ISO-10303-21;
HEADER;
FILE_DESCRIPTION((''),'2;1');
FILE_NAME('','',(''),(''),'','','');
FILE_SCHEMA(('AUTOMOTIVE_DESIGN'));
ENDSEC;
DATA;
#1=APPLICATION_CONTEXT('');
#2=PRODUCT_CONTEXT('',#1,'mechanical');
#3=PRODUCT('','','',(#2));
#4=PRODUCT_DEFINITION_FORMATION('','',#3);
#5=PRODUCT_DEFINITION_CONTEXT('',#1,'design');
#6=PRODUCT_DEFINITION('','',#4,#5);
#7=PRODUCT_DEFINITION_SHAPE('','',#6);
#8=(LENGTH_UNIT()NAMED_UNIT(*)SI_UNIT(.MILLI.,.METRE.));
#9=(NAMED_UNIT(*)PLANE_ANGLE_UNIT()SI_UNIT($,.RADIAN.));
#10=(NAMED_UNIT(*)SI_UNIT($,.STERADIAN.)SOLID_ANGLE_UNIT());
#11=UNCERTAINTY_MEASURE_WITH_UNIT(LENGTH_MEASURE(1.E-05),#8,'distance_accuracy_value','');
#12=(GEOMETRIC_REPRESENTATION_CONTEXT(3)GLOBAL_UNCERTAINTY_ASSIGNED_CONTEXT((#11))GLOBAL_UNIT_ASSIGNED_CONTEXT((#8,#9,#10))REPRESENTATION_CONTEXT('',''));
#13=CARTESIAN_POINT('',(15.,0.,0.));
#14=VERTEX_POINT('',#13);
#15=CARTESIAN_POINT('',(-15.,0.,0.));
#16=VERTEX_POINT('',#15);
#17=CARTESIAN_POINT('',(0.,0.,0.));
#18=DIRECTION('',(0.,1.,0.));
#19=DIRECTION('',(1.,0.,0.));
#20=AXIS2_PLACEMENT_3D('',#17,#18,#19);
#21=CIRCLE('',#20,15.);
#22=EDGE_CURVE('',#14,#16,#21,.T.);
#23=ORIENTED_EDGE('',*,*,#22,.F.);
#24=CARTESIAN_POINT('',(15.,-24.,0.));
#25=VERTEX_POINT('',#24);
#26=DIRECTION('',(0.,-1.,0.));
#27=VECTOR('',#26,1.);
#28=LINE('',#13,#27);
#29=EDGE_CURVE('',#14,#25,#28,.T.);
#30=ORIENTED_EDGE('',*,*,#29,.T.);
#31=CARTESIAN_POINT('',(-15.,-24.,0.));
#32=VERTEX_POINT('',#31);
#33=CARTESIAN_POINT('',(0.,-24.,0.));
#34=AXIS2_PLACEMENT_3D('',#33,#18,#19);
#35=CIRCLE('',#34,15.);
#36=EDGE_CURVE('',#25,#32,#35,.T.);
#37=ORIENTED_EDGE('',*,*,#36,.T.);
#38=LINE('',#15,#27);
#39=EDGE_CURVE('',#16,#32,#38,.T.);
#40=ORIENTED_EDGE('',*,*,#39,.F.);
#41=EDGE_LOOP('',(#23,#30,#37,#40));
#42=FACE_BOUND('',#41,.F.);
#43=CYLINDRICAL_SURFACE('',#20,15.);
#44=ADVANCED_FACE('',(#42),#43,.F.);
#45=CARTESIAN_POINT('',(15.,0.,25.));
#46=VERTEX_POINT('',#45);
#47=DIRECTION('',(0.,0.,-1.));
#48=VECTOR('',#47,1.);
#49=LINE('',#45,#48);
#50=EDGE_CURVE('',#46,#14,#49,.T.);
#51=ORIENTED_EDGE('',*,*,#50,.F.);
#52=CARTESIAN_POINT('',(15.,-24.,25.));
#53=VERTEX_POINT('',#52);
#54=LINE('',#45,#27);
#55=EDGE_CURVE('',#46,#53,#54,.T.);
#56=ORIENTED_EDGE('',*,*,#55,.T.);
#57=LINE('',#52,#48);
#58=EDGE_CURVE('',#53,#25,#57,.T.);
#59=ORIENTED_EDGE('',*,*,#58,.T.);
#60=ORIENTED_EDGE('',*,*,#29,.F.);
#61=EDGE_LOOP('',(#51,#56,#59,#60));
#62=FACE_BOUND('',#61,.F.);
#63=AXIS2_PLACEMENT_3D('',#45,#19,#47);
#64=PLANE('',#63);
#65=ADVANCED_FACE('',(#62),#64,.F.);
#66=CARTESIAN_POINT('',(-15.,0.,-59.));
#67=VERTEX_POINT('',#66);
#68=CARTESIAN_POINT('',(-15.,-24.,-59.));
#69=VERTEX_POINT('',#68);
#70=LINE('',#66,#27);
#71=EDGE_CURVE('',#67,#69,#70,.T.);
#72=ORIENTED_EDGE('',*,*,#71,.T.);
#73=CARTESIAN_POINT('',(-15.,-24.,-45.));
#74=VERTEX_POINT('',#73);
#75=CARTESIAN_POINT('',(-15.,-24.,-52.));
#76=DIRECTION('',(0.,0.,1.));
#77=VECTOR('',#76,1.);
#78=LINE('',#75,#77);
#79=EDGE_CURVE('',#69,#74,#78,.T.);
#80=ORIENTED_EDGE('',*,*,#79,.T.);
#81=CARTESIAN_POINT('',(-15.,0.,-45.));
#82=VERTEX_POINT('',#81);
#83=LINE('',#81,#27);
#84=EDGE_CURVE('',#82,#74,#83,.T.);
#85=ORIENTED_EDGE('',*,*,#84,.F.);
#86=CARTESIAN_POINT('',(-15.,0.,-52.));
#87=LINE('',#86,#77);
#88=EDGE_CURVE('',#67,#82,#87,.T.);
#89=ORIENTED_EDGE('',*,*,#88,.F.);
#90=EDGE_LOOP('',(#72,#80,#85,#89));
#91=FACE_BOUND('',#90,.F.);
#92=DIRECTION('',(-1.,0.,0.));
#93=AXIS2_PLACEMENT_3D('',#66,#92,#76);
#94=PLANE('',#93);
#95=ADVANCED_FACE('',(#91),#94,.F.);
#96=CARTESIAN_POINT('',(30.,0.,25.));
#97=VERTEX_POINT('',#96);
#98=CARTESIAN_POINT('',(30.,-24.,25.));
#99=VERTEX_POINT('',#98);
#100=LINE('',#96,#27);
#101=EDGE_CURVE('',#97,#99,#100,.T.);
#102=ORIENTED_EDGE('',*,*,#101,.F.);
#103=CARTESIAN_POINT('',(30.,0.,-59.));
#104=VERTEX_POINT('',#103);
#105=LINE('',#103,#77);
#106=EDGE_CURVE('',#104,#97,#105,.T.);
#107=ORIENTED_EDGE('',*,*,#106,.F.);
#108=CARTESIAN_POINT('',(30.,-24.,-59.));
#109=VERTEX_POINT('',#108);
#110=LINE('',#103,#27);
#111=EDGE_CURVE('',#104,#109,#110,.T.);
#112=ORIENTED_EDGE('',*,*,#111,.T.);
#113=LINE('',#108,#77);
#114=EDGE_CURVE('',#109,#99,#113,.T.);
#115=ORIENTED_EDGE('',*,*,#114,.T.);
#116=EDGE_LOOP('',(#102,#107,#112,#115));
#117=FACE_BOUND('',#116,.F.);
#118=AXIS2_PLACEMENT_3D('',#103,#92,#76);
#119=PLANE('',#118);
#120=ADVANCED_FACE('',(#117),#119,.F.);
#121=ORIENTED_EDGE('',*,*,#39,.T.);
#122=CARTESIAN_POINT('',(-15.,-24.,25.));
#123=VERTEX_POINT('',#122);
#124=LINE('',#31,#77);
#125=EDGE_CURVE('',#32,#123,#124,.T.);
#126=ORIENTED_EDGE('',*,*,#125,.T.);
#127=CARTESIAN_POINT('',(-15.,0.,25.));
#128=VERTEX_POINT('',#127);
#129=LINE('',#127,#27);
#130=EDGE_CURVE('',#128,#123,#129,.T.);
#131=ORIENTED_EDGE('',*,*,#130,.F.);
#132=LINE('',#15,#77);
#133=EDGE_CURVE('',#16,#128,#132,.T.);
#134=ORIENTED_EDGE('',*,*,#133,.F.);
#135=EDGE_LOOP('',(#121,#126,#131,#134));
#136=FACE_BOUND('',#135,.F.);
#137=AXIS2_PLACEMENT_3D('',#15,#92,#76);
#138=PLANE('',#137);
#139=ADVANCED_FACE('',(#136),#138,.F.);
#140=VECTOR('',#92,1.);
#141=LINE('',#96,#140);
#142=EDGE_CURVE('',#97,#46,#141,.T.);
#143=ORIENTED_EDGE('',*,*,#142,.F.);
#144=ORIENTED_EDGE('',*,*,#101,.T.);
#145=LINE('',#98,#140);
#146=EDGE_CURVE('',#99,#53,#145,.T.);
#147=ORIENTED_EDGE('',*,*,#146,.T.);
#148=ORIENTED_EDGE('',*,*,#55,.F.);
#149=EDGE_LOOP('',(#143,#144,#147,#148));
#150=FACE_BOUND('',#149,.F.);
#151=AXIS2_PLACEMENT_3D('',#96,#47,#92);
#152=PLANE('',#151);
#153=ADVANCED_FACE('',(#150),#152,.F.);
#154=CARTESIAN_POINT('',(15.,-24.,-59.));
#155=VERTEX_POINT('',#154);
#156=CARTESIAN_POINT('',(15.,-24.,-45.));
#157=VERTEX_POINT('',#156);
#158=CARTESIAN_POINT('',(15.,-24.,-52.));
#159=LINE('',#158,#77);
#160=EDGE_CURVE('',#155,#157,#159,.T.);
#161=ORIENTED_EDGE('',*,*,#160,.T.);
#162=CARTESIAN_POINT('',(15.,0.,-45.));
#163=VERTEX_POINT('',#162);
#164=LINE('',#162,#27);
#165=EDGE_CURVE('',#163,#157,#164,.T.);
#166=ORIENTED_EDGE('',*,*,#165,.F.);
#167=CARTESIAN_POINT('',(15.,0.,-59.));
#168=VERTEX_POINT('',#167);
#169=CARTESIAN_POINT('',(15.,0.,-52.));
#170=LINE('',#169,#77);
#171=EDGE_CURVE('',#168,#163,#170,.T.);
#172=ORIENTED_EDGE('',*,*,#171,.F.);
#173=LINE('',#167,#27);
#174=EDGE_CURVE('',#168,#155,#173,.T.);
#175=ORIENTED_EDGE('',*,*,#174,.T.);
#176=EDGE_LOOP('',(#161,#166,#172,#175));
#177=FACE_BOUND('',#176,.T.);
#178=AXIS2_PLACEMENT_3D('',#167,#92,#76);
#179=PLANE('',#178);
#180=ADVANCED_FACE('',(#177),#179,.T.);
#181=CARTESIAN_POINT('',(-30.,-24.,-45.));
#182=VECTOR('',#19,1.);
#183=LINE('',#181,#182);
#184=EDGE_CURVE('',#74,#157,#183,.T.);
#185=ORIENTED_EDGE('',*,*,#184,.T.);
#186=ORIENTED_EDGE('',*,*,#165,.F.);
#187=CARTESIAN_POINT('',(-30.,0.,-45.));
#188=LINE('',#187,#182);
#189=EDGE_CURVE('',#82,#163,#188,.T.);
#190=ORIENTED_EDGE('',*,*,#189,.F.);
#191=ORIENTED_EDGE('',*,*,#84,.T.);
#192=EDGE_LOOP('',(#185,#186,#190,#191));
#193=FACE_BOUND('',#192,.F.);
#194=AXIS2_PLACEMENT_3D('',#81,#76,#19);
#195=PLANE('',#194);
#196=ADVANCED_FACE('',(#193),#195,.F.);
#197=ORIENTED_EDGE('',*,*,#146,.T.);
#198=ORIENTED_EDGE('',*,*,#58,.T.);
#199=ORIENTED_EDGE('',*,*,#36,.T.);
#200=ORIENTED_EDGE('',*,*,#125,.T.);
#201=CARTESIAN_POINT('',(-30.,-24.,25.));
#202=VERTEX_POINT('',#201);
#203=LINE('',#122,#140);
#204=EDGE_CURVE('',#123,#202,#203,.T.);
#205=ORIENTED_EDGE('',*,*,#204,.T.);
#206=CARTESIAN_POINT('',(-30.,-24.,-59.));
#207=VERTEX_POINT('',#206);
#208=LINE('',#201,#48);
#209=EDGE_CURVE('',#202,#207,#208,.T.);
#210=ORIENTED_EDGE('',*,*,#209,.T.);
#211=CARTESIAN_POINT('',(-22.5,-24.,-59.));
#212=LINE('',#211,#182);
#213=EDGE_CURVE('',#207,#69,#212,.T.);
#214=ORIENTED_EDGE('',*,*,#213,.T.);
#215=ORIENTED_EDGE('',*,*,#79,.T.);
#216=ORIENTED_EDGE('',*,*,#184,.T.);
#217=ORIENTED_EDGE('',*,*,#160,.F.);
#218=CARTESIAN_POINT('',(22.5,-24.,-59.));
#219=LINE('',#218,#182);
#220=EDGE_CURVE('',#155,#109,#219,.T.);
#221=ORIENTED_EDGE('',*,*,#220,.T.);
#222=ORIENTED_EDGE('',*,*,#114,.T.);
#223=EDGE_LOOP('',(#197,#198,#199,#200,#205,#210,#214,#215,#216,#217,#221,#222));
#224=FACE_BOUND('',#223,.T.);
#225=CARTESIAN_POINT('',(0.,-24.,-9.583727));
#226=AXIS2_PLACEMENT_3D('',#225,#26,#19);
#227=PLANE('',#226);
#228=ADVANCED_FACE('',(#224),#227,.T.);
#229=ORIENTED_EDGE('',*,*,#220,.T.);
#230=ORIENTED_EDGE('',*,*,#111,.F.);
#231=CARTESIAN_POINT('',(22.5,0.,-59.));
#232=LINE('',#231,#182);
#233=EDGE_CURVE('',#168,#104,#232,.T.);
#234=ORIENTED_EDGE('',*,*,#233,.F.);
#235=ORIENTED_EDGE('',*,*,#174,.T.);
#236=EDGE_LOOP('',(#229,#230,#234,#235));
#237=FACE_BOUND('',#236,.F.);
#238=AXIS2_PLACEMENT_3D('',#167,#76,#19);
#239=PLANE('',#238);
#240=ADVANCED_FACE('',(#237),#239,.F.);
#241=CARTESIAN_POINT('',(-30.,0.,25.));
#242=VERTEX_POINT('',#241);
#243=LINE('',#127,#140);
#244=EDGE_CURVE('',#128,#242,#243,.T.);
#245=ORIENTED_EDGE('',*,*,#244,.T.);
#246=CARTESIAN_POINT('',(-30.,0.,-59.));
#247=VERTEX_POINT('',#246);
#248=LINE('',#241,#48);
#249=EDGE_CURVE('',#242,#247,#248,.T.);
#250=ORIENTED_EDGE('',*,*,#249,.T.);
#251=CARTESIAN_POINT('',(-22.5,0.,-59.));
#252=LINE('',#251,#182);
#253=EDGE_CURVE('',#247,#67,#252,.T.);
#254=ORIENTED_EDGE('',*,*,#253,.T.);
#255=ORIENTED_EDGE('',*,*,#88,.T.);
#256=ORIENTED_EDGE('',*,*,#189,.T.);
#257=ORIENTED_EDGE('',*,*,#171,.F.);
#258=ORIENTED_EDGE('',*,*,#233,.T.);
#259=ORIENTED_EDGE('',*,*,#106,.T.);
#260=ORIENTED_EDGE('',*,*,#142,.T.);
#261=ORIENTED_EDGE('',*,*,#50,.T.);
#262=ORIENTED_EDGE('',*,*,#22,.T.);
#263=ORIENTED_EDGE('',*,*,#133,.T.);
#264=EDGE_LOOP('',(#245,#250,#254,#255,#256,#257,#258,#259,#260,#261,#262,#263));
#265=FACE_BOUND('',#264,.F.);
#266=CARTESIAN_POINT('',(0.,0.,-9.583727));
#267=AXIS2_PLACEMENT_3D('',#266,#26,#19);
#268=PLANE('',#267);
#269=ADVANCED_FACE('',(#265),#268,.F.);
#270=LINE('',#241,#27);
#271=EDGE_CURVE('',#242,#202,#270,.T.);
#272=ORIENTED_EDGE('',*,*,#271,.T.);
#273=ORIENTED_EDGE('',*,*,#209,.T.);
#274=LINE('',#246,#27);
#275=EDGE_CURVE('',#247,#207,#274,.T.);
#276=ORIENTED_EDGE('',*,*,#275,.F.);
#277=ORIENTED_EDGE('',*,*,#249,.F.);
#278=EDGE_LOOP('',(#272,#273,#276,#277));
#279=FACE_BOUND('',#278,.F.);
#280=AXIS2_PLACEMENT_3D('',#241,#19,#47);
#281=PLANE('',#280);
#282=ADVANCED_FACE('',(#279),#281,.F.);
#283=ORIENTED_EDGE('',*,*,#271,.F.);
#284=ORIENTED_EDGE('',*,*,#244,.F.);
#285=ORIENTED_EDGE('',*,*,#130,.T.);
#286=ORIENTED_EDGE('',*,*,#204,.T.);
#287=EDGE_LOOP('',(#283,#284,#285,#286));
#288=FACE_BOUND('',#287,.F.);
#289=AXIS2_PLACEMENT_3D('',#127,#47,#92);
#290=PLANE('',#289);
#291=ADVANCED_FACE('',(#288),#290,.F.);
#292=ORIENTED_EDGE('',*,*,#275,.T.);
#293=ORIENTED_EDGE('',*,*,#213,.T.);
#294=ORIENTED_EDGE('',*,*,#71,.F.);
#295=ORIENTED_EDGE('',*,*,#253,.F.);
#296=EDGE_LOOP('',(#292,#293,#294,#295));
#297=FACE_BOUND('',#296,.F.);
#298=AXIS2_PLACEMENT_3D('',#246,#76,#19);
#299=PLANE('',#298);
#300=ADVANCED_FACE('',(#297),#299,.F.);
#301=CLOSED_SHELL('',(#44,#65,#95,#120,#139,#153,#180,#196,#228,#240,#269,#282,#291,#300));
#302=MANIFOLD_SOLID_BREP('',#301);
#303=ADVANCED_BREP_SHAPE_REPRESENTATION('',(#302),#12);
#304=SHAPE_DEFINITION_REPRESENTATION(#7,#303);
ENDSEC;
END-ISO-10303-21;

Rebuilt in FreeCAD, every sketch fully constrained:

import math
import FreeCAD as App
import Part
import Sketcher

V = App.Vector
Q = App.Units.Quantity

doc = App.newDocument("Part")
body = doc.addObject("PartDesign::Body", "Body")

# Sketch on XZ plane
sketch1 = body.newObject("Sketcher::SketchObject", "Sketch")
sketch1.AttachmentSupport = (doc.getObject("XZ_Plane"), [""])
sketch1.MapMode = "FlatFace"
sketch1.addGeometry(Part.LineSegment(V(-30, 25, 0), V(-30, -59, 0)), False)
sketch1.addGeometry(Part.LineSegment(V(-30, -59, 0), V(-15, -59, 0)), False)
sketch1.addGeometry(Part.LineSegment(V(-15, -59, 0), V(-15, -45, 0)), False)
sketch1.addGeometry(Part.LineSegment(V(-15, -45, 0), V(15, -45, 0)), False)
sketch1.addGeometry(Part.LineSegment(V(15, -45, 0), V(15, -59, 0)), False)
sketch1.addGeometry(Part.LineSegment(V(15, -59, 0), V(30, -59, 0)), False)
sketch1.addGeometry(Part.LineSegment(V(30, -59, 0), V(30, 25, 0)), False)
sketch1.addGeometry(Part.LineSegment(V(30, 25, 0), V(15, 25, 0)), False)
sketch1.addGeometry(Part.LineSegment(V(15, 25, 0), V(15, 0, 0)), False)
sketch1.addGeometry(Part.ArcOfCircle(Part.Circle(V(0, 0, 0), V(0, 0, 1), 15), math.radians(180), math.radians(360)), False)
sketch1.addGeometry(Part.LineSegment(V(-15, 0, 0), V(-15, 25, 0)), False)
sketch1.addGeometry(Part.LineSegment(V(-15, 25, 0), V(-30, 25, 0)), False)
sketch1.addConstraint(Sketcher.Constraint("Coincident", 0, 2, 1, 1))
sketch1.addConstraint(Sketcher.Constraint("Coincident", 1, 2, 2, 1))
sketch1.addConstraint(Sketcher.Constraint("Coincident", 2, 2, 3, 1))
sketch1.addConstraint(Sketcher.Constraint("Coincident", 3, 2, 4, 1))
sketch1.addConstraint(Sketcher.Constraint("Coincident", 4, 2, 5, 1))
sketch1.addConstraint(Sketcher.Constraint("Coincident", 5, 2, 6, 1))
sketch1.addConstraint(Sketcher.Constraint("Coincident", 6, 2, 7, 1))
sketch1.addConstraint(Sketcher.Constraint("Coincident", 7, 2, 8, 1))
sketch1.addConstraint(Sketcher.Constraint("Tangent", 8, 2, 9, 2))
sketch1.addConstraint(Sketcher.Constraint("Tangent", 9, 1, 10, 1))
sketch1.addConstraint(Sketcher.Constraint("Coincident", 10, 2, 11, 1))
sketch1.addConstraint(Sketcher.Constraint("Coincident", 11, 2, 0, 1))
sketch1.addConstraint(Sketcher.Constraint("Vertical", 0))
sketch1.addConstraint(Sketcher.Constraint("Horizontal", 1))
sketch1.addConstraint(Sketcher.Constraint("Vertical", 2))
sketch1.addConstraint(Sketcher.Constraint("Horizontal", 3))
sketch1.addConstraint(Sketcher.Constraint("Vertical", 4))
sketch1.addConstraint(Sketcher.Constraint("Horizontal", 5))
sketch1.addConstraint(Sketcher.Constraint("Vertical", 6))
sketch1.addConstraint(Sketcher.Constraint("Horizontal", 7))
sketch1.addConstraint(Sketcher.Constraint("Vertical", 8))
sketch1.addConstraint(Sketcher.Constraint("Vertical", 10))
sketch1.addConstraint(Sketcher.Constraint("Horizontal", 11))
sketch1.addConstraint(Sketcher.Constraint("Coincident", 9, 3, -1, 1))
sketch1.addConstraint(Sketcher.Constraint("Symmetric", 1, 2, 4, 2, -2))
sketch1.addConstraint(Sketcher.Constraint("Symmetric", 6, 2, 11, 2, -2))
sketch1.addConstraint(Sketcher.Constraint("Vertical", 4, 2, 7, 2))
sketch1.addConstraint(Sketcher.Constraint("Radius", 9, Q("15 mm")))
sketch1.addConstraint(Sketcher.Constraint("DistanceX", 1, 1, 1, 2, Q("15 mm")))
sketch1.addConstraint(Sketcher.Constraint("DistanceY", 0, 2, 0, 1, Q("84 mm")))
sketch1.addConstraint(Sketcher.Constraint("DistanceY", 2, 1, 2, 2, Q("14 mm")))
sketch1.addConstraint(Sketcher.Constraint("DistanceY", 8, 2, 8, 1, Q("25 mm")))
pad1 = body.newObject("PartDesign::Pad", "Pad")
pad1.Profile = sketch1
pad1.Length = 24

doc.recompute()
